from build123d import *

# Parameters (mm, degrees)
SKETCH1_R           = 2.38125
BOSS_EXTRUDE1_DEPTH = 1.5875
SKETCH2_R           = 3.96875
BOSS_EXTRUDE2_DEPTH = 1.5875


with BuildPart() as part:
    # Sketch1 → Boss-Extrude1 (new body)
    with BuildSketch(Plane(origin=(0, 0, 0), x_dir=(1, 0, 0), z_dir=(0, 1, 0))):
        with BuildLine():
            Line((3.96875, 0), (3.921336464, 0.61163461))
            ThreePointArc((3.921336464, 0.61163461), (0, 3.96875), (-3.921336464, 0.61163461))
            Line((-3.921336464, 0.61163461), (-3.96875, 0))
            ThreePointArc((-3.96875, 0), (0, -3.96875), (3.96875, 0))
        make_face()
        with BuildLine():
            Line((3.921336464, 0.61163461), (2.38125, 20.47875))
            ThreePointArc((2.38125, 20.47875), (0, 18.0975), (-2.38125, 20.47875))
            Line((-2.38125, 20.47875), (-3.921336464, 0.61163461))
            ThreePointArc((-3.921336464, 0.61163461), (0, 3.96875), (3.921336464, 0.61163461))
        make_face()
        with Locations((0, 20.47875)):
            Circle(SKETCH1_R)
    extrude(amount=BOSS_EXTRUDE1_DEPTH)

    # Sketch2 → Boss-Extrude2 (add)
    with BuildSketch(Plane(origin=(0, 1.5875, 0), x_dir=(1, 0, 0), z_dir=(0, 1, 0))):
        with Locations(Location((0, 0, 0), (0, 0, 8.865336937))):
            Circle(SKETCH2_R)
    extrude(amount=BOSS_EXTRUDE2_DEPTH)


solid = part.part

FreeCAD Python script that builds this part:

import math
import FreeCAD as App
import Part
import Sketcher
from FreeCAD import Vector
Q = App.Units.Quantity

doc = App.newDocument("Part")
params = doc.addObject("Spreadsheet::Sheet", "Params")
for row, (alias, value) in enumerate([
    ("sketch1_radius", "0.09375 in"),
    ("sketch1_radius2", "0.15625 in"),
    ("pad1_length", "0.0625 in"),
    ("sketch2_diameter", "0.3125 in"),
    ("pad2_length", "0.0625 in"),
], start=1):
    params.set(f"A{row}", alias)
    params.set(f"B{row}", "=" + value)
    params.setAlias(f"B{row}", alias)

body = doc.addObject("PartDesign::Body", "Body")

# Sketch on XZ plane
sketch1 = body.newObject("Sketcher::SketchObject", "Sketch")
sketch1.AttachmentSupport = (doc.getObject("XZ_Plane"), [""])
sketch1.MapMode = "FlatFace"
sketch1.addGeometry([
    Part.LineSegment(Vector(4, 0, 0), Vector(3.9, -0.6, 0)),  # 0
    Part.LineSegment(Vector(3.9, -0.6, 0), Vector(2.4, -20.5, 0)),  # 1
    Part.ArcOfCircle(Part.Circle(Vector(0, -20.5, 0), Vector(0, 0, 1), 2.4), math.radians(180), math.radians(360)),  # 2
    Part.LineSegment(Vector(-2.4, -20.5, 0), Vector(-3.9, -0.6, 0)),  # 3
    Part.LineSegment(Vector(-3.9, -0.6, 0), Vector(-4, 0, 0)),  # 4
    Part.ArcOfCircle(Part.Circle(Vector(0, 0, 0), Vector(0, 0, 1), 4), math.radians(0), math.radians(180)),  # 5
], False)
sketch1.addConstraint([
    Sketcher.Constraint("Coincident", 0, 2, 1, 1),
    Sketcher.Constraint("Coincident", 1, 2, 2, 2),
    Sketcher.Constraint("Coincident", 2, 1, 3, 1),
    Sketcher.Constraint("Coincident", 3, 2, 4, 1),
    Sketcher.Constraint("Coincident", 4, 2, 5, 2),
    Sketcher.Constraint("Coincident", 5, 1, 0, 1),
    Sketcher.Constraint("Coincident", 5, 3, -1, 1),
    Sketcher.Constraint("Symmetric", 1, 2, 2, 1, -2),
    Sketcher.Constraint("Symmetric", 0, 2, 3, 2, -2),
    Sketcher.Constraint("PointOnObject", 4, 2, -1),
    Sketcher.Constraint("PointOnObject", 5, 1, -1),
    Sketcher.Constraint("Parallel", 0, 1),
    Sketcher.Constraint("Horizontal", 2, 3, 1, 2),
    Sketcher.Constraint("Radius", 2, Q("0.09375 in")),
    Sketcher.Constraint("Radius", 5, Q("0.15625 in")),
    Sketcher.Constraint("Distance", 0, 0.61347),
    Sketcher.Constraint("Distance", 1, 19.926719),
])
sketch1.setExpression("Constraints[13]", "Params.sketch1_radius")
sketch1.setExpression("Constraints[14]", "Params.sketch1_radius2")
pad1 = body.newObject("PartDesign::Pad", "Pad")
pad1.Profile = sketch1
pad1.setExpression("Length", "Params.pad1_length")
pad1.Reversed = True

# Sketch on XZ plane
sketch2 = body.newObject("Sketcher::SketchObject", "Sketch001")
sketch2.AttachmentSupport = (doc.getObject("XZ_Plane"), [""])
sketch2.MapMode = "FlatFace"
sketch2.AttachmentOffset = App.Placement(Vector(0, 0, -0.0625 * 25.4), App.Rotation())
sketch2.addGeometry(Part.Circle(Vector(0, 0, 0), Vector(0, 0, 1), 4), False)
sketch2.addConstraint([
    Sketcher.Constraint("Coincident", 0, 3, -1, 1),
    Sketcher.Constraint("Diameter", 0, Q("0.3125 in")),
])
sketch2.setExpression("Constraints[1]", "Params.sketch2_diameter")
pad2 = body.newObject("PartDesign::Pad", "Pad001")
pad2.Profile = sketch2
pad2.setExpression("Length", "Params.pad2_length")
pad2.Reversed = True

doc.recompute()
